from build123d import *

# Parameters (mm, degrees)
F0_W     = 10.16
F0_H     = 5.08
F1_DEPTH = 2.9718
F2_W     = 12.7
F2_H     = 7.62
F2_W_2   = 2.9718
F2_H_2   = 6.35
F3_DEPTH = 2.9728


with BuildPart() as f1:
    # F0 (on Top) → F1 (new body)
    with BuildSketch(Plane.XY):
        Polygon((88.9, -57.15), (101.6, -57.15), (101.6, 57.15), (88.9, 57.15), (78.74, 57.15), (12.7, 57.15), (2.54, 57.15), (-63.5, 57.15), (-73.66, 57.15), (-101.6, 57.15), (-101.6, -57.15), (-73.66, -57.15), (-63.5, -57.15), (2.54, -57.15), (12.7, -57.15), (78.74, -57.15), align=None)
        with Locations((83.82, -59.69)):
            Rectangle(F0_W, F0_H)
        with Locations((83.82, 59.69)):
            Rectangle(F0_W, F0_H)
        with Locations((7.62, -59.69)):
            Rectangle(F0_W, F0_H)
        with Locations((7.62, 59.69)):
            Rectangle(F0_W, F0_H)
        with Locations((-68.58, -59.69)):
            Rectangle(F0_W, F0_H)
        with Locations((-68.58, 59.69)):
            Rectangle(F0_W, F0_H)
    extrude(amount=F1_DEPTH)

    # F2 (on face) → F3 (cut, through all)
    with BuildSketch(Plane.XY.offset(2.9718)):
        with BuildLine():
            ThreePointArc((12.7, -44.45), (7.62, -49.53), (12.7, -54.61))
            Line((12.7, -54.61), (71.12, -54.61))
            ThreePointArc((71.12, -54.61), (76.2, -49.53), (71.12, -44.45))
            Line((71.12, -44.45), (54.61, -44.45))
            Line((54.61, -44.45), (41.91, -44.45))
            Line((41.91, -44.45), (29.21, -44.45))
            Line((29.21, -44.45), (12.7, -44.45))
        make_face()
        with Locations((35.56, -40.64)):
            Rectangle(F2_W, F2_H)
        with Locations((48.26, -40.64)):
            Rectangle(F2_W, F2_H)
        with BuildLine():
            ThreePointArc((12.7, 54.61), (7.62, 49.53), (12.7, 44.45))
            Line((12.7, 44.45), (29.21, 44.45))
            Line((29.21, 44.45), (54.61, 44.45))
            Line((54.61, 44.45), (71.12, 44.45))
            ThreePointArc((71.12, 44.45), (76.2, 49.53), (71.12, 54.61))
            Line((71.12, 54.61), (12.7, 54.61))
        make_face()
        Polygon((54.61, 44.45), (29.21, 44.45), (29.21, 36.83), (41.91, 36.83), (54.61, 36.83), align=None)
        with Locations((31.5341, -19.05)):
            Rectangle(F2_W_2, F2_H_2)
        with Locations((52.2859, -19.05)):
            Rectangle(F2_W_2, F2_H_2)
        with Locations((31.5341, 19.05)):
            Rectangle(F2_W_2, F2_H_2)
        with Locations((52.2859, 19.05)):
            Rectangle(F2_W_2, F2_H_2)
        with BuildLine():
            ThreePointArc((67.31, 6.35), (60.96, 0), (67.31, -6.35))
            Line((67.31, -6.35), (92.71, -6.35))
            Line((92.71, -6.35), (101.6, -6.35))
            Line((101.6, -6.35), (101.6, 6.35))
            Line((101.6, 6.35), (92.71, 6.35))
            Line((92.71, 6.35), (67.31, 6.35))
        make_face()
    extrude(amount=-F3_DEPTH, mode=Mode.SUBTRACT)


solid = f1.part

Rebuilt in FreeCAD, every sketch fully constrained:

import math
import FreeCAD as App
import Part
import Sketcher

V = App.Vector
Q = App.Units.Quantity


def add_polygon(sketch, points):
    """Adds a closed chain of lines whose ends are joined by coincident constraints."""
    first, n = sketch.GeometryCount, len(points)
    for a, b in zip(points, points[1:] + points[:1]):
        sketch.addGeometry(Part.LineSegment(App.Vector(*a, 0), App.Vector(*b, 0)), False)
    for i in range(n):
        sketch.addConstraint(Sketcher.Constraint("Coincident", first + i, 2, first + (i + 1) % n, 1))

doc = App.newDocument("Part")
body = doc.addObject("PartDesign::Body", "Body")

sketch1 = doc.addObject("Sketcher::SketchObject", "Sketch")
body.addObject(sketch1)
sketch1.AttachmentSupport = (doc.XY_Plane, [""])
sketch1.MapMode = "FlatFace"
add_polygon(sketch1, [(102, -57), (102, 57), (89, 57), (89, 62), (79, 62), (79, 57), (13, 57), (13, 62), (3, 62), (3, 57), (-64, 57), (-64, 62), (-74, 62), (-74, 57), (-102, 57), (-102, -57), (-74, -57), (-74, -62), (-64, -62), (-64, -57), (3, -57), (3, -62), (13, -62), (13, -57), (79, -57), (79, -62), (89, -62), (89, -57)])
sketch1.addConstraint([
    Sketcher.Constraint("Vertical", 0),
    Sketcher.Constraint("Horizontal", 1),
    Sketcher.Constraint("Vertical", 2),
    Sketcher.Constraint("Horizontal", 3),
    Sketcher.Constraint("Vertical", 4),
    Sketcher.Constraint("Horizontal", 5),
    Sketcher.Constraint("Vertical", 6),
    Sketcher.Constraint("Horizontal", 7),
    Sketcher.Constraint("Vertical", 8),
    Sketcher.Constraint("Horizontal", 9),
    Sketcher.Constraint("Vertical", 10),
    Sketcher.Constraint("Horizontal", 11),
    Sketcher.Constraint("Vertical", 12),
    Sketcher.Constraint("Horizontal", 13),
    Sketcher.Constraint("Vertical", 14),
    Sketcher.Constraint("Horizontal", 15),
    Sketcher.Constraint("Vertical", 16),
    Sketcher.Constraint("Horizontal", 17),
    Sketcher.Constraint("Vertical", 18),
    Sketcher.Constraint("Horizontal", 19),
    Sketcher.Constraint("Vertical", 20),
    Sketcher.Constraint("Horizontal", 21),
    Sketcher.Constraint("Vertical", 22),
    Sketcher.Constraint("Horizontal", 23),
    Sketcher.Constraint("Vertical", 24),
    Sketcher.Constraint("Horizontal", 25),
    Sketcher.Constraint("Vertical", 26),
    Sketcher.Constraint("Horizontal", 27),
    Sketcher.Constraint("Symmetric", 0, 2, 14, 2, -1, 1),
    Sketcher.Constraint("Symmetric", 12, 2, 15, 2, -1),
    Sketcher.Constraint("Symmetric", 10, 2, 17, 2, -1),
    Sketcher.Constraint("Symmetric", 8, 2, 19, 2, -1),
    Sketcher.Constraint("Symmetric", 6, 2, 21, 2, -1),
    Sketcher.Constraint("Symmetric", 4, 2, 23, 2, -1),
    Sketcher.Constraint("Symmetric", 2, 2, 25, 2, -1),
    Sketcher.Constraint("Horizontal", 1, 2, 4, 2),
    Sketcher.Constraint("Horizontal", 3, 2, 6, 2),
    Sketcher.Constraint("Horizontal", 5, 2, 8, 2),
    Sketcher.Constraint("Horizontal", 7, 2, 10, 2),
    Sketcher.Constraint("Horizontal", 23, 2, 26, 2),
    Sketcher.Constraint("Equal", 3, 7),
    Sketcher.Constraint("Equal", 5, 9),
    Sketcher.Constraint("Equal", 7, 11),
    Sketcher.Constraint("DistanceX", 1, 2, 1, 1, Q("0.5 in")),
    Sketcher.Constraint("DistanceX", 3, 2, 3, 1, Q("0.4 in")),
    Sketcher.Constraint("DistanceX", 5, 2, 5, 1, Q("2.6 in")),
    Sketcher.Constraint("DistanceX", 13, 2, 13, 1, Q("1.1 in")),
    Sketcher.Constraint("DistanceY", 0, 1, 0, 2, Q("4.5 in")),
    Sketcher.Constraint("DistanceY", 2, 1, 2, 2, Q("0.2 in")),
])
pad1 = doc.addObject("PartDesign::Pad", "Pad")
body.addObject(pad1)
pad1.Profile = sketch1
pad1.Length = Q("0.117 in")

sketch2 = doc.addObject("Sketcher::SketchObject", "Sketch001")
body.addObject(sketch2)
sketch2.AttachmentSupport = (doc.XY_Plane, [""])
sketch2.MapMode = "FlatFace"
sketch2.AttachmentOffset = App.Placement(V(0, 0, 0.117 * 25.4), App.Rotation())
sketch2.addGeometry(Part.ArcOfCircle(Part.Circle(V(12.7, -49.5, 0), V(0, 0, 1), 5.1), math.radians(90), math.radians(270)), False)
sketch2.addGeometry(Part.LineSegment(V(12.7, -54.6, 0), V(71.1, -54.6, 0)), False)
sketch2.addGeometry(Part.ArcOfCircle(Part.Circle(V(71.1, -49.5, 0), V(0, 0, 1), 5.1), math.radians(-90), math.radians(90)), False)
sketch2.addGeometry(Part.LineSegment(V(71.1, -44.5, 0), V(54.6, -44.5, 0)), False)
sketch2.addGeometry(Part.LineSegment(V(54.6, -44.5, 0), V(54.6, -36.8, 0)), False)
sketch2.addGeometry(Part.LineSegment(V(54.6, -36.8, 0), V(29.2, -36.8, 0)), False)
sketch2.addGeometry(Part.LineSegment(V(29.2, -36.8, 0), V(29.2, -44.5, 0)), False)
sketch2.addGeometry(Part.LineSegment(V(29.2, -44.5, 0), V(12.7, -44.5, 0)), False)
sketch2.addGeometry(Part.ArcOfCircle(Part.Circle(V(12.7, 49.5, 0), V(0, 0, 1), 5.1), math.radians(90), math.radians(270)), False)
sketch2.addGeometry(Part.LineSegment(V(12.7, 44.5, 0), V(29.2, 44.5, 0)), False)
sketch2.addGeometry(Part.LineSegment(V(29.2, 44.5, 0), V(29.2, 36.8, 0)), False)
sketch2.addGeometry(Part.LineSegment(V(29.2, 36.8, 0), V(54.6, 36.8, 0)), False)
sketch2.addGeometry(Part.LineSegment(V(54.6, 36.8, 0), V(54.6, 44.5, 0)), False)
sketch2.addGeometry(Part.LineSegment(V(54.6, 44.5, 0), V(71.1, 44.5, 0)), False)
sketch2.addGeometry(Part.ArcOfCircle(Part.Circle(V(71.1, 49.5, 0), V(0, 0, 1), 5.1), math.radians(-90), math.radians(90)), False)
sketch2.addGeometry(Part.LineSegment(V(71.1, 54.6, 0), V(12.7, 54.6, 0)), False)
add_polygon(sketch2, [(30, -15.9), (30, -22.2), (33, -22.2), (33, -15.9)])
add_polygon(sketch2, [(50.8, -15.9), (50.8, -22.2), (53.8, -22.2), (53.8, -15.9)])
add_polygon(sketch2, [(30, 22.2), (30, 15.9), (33, 15.9), (33, 22.2)])
add_polygon(sketch2, [(50.8, 22.2), (50.8, 15.9), (53.8, 15.9), (53.8, 22.2)])
sketch2.addGeometry(Part.ArcOfCircle(Part.Circle(V(67.3, 0, 0), V(0, 0, 1), 6.3), math.radians(90), math.radians(270)), False)
sketch2.addGeometry(Part.LineSegment(V(67.3, -6.3, 0), V(101.6, -6.3, 0)), False)
sketch2.addGeometry(Part.LineSegment(V(101.6, -6.3, 0), V(101.6, 6.3, 0)), False)
sketch2.addGeometry(Part.LineSegment(V(101.6, 6.3, 0), V(67.3, 6.3, 0)), False)
sketch2.addConstraint([
    Sketcher.Constraint("Tangent", 0, 2, 1, 1),
    Sketcher.Constraint("Tangent", 1, 2, 2, 1),
    Sketcher.Constraint("Tangent", 2, 2, 3, 1),
    Sketcher.Constraint("Coincident", 3, 2, 4, 1),
    Sketcher.Constraint("Coincident", 4, 2, 5, 1),
    Sketcher.Constraint("Coincident", 5, 2, 6, 1),
    Sketcher.Constraint("Coincident", 6, 2, 7, 1),
    Sketcher.Constraint("Tangent", 7, 2, 0, 1),
    Sketcher.Constraint("Tangent", 8, 2, 9, 1),
    Sketcher.Constraint("Coincident", 9, 2, 10, 1),
    Sketcher.Constraint("Coincident", 10, 2, 11, 1),
    Sketcher.Constraint("Coincident", 11, 2, 12, 1),
    Sketcher.Constraint("Coincident", 12, 2, 13, 1),
    Sketcher.Constraint("Tangent", 13, 2, 14, 1),
    Sketcher.Constraint("Tangent", 14, 2, 15, 1),
    Sketcher.Constraint("Tangent", 15, 2, 8, 1),
    Sketcher.Constraint("Tangent", 32, 2, 33, 1),
    Sketcher.Constraint("Coincident", 33, 2, 34, 1),
    Sketcher.Constraint("Coincident", 34, 2, 35, 1),
    Sketcher.Constraint("Tangent", 35, 2, 32, 1),
    Sketcher.Constraint("Horizontal", 1),
    Sketcher.Constraint("Horizontal", 3),
    Sketcher.Constraint("Vertical", 4),
    Sketcher.Constraint("Horizontal", 5),
    Sketcher.Constraint("Vertical", 6),
    Sketcher.Constraint("Horizontal", 7),
    Sketcher.Constraint("Horizontal", 9),
    Sketcher.Constraint("Vertical", 10),
    Sketcher.Constraint("Horizontal", 11),
    Sketcher.Constraint("Vertical", 12),
    Sketcher.Constraint("Horizontal", 13),
    Sketcher.Constraint("Horizontal", 15),
    Sketcher.Constraint("Vertical", 16),
    Sketcher.Constraint("Horizontal", 17),
    Sketcher.Constraint("Vertical", 18),
    Sketcher.Constraint("Horizontal", 19),
    Sketcher.Constraint("Vertical", 20),
    Sketcher.Constraint("Horizontal", 21),
    Sketcher.Constraint("Vertical", 22),
    Sketcher.Constraint("Horizontal", 23),
    Sketcher.Constraint("Vertical", 24),
    Sketcher.Constraint("Horizontal", 25),
    Sketcher.Constraint("Vertical", 26),
    Sketcher.Constraint("Horizontal", 27),
    Sketcher.Constraint("Vertical", 28),
    Sketcher.Constraint("Horizontal", 29),
    Sketcher.Constraint("Vertical", 30),
    Sketcher.Constraint("Horizontal", 31),
    Sketcher.Constraint("Horizontal", 33),
    Sketcher.Constraint("Vertical", 34),
    Sketcher.Constraint("Horizontal", 35),
    Sketcher.Constraint("Equal", 0, 2),
    Sketcher.Constraint("Equal", 2, 8),
    Sketcher.Constraint("Equal", 8, 14),
    Sketcher.Constraint("Symmetric", 0, 3, 8, 3, -1),
    Sketcher.Constraint("Symmetric", 5, 2, 10, 2, -1),
    Sketcher.Constraint("Symmetric", 19, 2, 24, 2, -1),
    Sketcher.Constraint("Symmetric", 17, 2, 26, 2, -1),
    Sketcher.Constraint("Symmetric", 23, 2, 28, 2, -1),
    Sketcher.Constraint("Symmetric", 21, 2, 30, 2, -1),
    Sketcher.Constraint("PointOnObject", 32, 3, -1),
    Sketcher.Constraint("Horizontal", 17, 2, 20, 2),
    Sketcher.Constraint("Horizontal", 19, 2, 22, 2),
    Sketcher.Constraint("Vertical", 2, 3, 14, 3),
    Sketcher.Constraint("Vertical", 4, 2, 11, 2),
    Sketcher.Constraint("Equal", 3, 7),
    Sketcher.Constraint("Equal", 19, 21),
    Sketcher.Constraint("Radius", 0, Q("0.2 in")),
    Sketcher.Constraint("DistanceX", 5, 2, 5, 1, Q("1 in")),
    Sketcher.Constraint("Radius", 32, Q("0.25 in")),
    Sketcher.Constraint("DistanceX", 1, 1, 1, 2, Q("2.3 in")),
    Sketcher.Constraint("DistanceY", 4, 1, 4, 2, Q("0.3 in")),
    Sketcher.Constraint("DistanceX", -1, 1, 20, 2, Q("2 in")),
    Sketcher.Constraint("DistanceX", -1, 1, 33, 2, Q("4 in")),
    Sketcher.Constraint("DistanceX", 33, 1, 33, 2, Q("1.35 in")),
    Sketcher.Constraint("DistanceY", 16, 2, 16, 1, Q("0.25 in")),
    Sketcher.Constraint("DistanceX", -1, 1, 0, 3, Q("0.5 in")),
    Sketcher.Constraint("DistanceX", -1, 1, 17, 2, Q("1.3 in")),
    Sketcher.Constraint("DistanceY", 0, 3, 8, 3, Q("3.9 in")),
    Sketcher.Constraint("DistanceX", 17, 1, 17, 2, Q("0.117 in")),
    Sketcher.Constraint("DistanceY", 19, 2, 24, 2, Q("1.25 in")),
])
pocket1 = doc.addObject("PartDesign::Pocket", "Pocket")
body.addObject(pocket1)
pocket1.Profile = sketch2
pocket1.Type = "ThroughAll"

doc.recompute()
